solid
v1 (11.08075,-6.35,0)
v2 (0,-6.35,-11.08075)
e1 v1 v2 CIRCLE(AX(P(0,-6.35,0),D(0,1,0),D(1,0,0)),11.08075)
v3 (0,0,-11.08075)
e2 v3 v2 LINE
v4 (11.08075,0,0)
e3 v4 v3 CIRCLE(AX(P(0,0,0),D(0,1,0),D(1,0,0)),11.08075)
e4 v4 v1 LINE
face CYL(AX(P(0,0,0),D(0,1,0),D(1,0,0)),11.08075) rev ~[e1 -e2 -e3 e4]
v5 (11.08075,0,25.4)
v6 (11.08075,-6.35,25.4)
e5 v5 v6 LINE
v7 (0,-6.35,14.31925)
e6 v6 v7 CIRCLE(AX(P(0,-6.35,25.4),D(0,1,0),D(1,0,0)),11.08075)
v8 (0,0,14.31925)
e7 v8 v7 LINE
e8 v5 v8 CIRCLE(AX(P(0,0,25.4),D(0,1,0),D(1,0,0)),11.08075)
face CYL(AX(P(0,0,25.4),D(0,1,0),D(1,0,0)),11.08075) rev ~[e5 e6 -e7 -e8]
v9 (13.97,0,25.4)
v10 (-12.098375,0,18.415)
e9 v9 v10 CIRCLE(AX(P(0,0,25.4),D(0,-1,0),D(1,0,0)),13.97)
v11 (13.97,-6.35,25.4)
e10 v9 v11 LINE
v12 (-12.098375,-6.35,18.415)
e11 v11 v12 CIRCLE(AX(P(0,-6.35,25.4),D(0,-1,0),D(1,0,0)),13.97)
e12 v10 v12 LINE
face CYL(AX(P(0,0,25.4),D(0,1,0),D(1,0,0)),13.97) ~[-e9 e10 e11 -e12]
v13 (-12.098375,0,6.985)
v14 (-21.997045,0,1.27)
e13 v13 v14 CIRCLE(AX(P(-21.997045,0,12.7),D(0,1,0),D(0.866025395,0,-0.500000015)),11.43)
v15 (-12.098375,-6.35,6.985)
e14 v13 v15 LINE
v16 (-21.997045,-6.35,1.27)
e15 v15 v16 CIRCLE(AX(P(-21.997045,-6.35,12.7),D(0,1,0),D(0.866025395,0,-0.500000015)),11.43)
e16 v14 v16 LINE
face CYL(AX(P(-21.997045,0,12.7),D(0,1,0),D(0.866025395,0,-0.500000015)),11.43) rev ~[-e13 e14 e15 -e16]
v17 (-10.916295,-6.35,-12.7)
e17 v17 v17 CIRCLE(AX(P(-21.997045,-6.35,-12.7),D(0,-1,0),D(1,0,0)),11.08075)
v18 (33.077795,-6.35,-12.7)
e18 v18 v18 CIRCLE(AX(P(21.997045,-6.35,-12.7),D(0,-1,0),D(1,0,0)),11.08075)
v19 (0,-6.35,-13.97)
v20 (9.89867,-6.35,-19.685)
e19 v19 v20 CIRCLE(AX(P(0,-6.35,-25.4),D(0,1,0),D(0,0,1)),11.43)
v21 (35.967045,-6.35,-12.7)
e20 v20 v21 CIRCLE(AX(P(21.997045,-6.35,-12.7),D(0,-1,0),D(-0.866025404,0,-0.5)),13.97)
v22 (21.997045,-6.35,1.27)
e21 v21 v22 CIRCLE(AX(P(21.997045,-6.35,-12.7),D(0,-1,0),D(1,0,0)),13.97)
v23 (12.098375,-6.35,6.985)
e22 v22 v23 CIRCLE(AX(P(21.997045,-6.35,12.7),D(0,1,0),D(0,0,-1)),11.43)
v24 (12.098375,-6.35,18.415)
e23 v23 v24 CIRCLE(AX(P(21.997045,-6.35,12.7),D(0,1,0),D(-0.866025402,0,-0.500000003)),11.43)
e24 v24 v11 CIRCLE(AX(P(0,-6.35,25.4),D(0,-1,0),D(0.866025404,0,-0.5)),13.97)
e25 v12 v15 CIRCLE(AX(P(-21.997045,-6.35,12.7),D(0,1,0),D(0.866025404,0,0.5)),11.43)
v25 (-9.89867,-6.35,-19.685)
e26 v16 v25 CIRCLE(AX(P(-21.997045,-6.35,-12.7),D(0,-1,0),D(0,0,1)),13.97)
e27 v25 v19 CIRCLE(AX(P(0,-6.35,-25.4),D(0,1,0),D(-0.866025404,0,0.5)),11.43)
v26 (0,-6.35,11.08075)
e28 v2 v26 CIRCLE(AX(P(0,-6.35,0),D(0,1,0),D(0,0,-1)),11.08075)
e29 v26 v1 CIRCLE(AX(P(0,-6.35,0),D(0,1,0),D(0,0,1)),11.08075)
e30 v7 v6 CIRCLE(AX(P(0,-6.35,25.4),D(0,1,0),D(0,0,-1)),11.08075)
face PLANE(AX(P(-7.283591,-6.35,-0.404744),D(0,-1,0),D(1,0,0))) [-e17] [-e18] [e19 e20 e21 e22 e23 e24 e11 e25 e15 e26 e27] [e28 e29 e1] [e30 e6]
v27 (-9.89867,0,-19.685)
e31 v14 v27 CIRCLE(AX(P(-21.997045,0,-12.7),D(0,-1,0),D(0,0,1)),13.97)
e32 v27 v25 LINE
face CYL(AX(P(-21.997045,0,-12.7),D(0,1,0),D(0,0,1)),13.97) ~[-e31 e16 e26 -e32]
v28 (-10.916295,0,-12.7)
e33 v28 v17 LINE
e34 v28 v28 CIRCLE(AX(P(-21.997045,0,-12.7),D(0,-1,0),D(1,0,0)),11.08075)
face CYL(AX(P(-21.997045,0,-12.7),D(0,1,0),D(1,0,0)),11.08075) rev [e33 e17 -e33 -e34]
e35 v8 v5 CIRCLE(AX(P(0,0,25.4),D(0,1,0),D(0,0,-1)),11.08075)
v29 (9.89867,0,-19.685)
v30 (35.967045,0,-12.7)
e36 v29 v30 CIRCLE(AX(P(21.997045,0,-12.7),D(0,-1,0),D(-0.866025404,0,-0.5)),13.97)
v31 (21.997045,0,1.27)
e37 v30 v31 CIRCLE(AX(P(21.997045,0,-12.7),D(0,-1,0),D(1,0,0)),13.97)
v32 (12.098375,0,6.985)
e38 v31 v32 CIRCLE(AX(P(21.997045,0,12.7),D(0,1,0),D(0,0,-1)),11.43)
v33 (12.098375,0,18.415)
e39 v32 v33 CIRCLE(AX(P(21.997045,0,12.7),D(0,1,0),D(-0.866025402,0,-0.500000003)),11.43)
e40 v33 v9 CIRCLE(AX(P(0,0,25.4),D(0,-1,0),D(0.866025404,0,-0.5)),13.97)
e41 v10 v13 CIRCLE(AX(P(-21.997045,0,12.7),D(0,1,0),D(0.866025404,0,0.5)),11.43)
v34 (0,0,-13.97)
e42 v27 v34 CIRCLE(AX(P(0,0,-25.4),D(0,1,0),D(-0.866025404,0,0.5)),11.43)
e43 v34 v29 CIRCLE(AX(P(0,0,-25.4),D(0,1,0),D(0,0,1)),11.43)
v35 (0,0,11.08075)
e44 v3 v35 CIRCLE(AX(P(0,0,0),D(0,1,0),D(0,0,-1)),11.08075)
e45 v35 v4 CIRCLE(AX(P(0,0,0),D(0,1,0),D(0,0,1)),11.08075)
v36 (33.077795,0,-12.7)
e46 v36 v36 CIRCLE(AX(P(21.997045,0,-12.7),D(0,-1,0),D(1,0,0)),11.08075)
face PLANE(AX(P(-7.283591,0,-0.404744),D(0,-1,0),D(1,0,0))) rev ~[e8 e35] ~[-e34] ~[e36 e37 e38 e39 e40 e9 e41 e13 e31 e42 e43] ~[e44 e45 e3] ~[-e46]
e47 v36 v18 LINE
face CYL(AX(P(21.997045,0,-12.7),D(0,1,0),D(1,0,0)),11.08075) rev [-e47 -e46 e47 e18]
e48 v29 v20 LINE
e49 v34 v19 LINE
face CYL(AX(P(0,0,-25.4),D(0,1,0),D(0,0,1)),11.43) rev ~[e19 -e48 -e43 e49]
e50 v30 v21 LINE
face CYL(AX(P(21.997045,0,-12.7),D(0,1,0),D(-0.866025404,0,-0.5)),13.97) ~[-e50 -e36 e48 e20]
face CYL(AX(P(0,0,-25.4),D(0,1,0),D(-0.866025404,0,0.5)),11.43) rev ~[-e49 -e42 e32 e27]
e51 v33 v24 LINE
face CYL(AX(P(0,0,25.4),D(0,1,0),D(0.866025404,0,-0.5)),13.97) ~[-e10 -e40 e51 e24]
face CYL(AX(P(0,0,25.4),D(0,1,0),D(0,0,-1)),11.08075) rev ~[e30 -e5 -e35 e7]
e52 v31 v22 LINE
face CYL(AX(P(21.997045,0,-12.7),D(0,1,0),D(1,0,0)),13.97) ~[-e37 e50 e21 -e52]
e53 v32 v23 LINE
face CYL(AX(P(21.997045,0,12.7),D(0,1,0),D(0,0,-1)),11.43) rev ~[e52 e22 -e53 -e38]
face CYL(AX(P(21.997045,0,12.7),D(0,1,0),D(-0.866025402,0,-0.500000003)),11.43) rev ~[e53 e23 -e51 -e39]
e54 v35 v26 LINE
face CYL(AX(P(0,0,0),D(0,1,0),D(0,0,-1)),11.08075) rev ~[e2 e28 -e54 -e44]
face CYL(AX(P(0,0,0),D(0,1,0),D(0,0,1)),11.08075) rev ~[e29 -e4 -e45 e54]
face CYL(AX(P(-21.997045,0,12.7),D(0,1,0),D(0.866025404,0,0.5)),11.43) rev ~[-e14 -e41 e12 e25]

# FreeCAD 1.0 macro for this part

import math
import FreeCAD as App
import Part
import Sketcher
Q = App.Units.Quantity

doc = App.newDocument("Part")
body = doc.addObject("PartDesign::Body", "Body")

sketch1 = body.newObject("Sketcher::SketchObject", "Sketch")
sketch1.AttachmentSupport = (doc.getObject("XZ_Plane"), [""])
sketch1.MapMode = "FlatFace"
sketch1.addGeometry(Part.ArcOfCircle(Part.Circle(App.Vector(22, -13, 0), App.Vector(0, 0, 1), 14), math.radians(-150), math.radians(0)), False)
sketch1.addGeometry(Part.ArcOfCircle(Part.Circle(App.Vector(22, -13, 0), App.Vector(0, 0, 1), 14), math.radians(0), math.radians(90)), False)
sketch1.addGeometry(Part.ArcOfCircle(Part.Circle(App.Vector(22, 13, 0), App.Vector(0, 0, 1), 11), math.radians(-150), math.radians(-90)), False)
sketch1.addGeometry(Part.ArcOfCircle(Part.Circle(App.Vector(22, 13, 0), App.Vector(0, 0, 1), 11), math.radians(150), math.radians(210)), False)
sketch1.addGeometry(Part.ArcOfCircle(Part.Circle(App.Vector(0, 25, 0), App.Vector(0, 0, 1), 14), math.radians(-30), math.radians(0)), False)
sketch1.addGeometry(Part.ArcOfCircle(Part.Circle(App.Vector(0, 25, 0), App.Vector(0, 0, 1), 14), math.radians(0), math.radians(210)), False)
sketch1.addGeometry(Part.ArcOfCircle(Part.Circle(App.Vector(-22, 13, 0), App.Vector(0, 0, 1), 11), math.radians(-30), math.radians(30)), False)
sketch1.addGeometry(Part.ArcOfCircle(Part.Circle(App.Vector(-22, 13, 0), App.Vector(0, 0, 1), 11), math.radians(-90), math.radians(-30)), False)
sketch1.addGeometry(Part.ArcOfCircle(Part.Circle(App.Vector(-22, -13, 0), App.Vector(0, 0, 1), 14), math.radians(90), math.radians(330)), False)
sketch1.addGeometry(Part.ArcOfCircle(Part.Circle(App.Vector(0, -25, 0), App.Vector(0, 0, 1), 11), math.radians(90), math.radians(150)), False)
sketch1.addGeometry(Part.ArcOfCircle(Part.Circle(App.Vector(0, -25, 0), App.Vector(0, 0, 1), 11), math.radians(30), math.radians(90)), False)
sketch1.addGeometry(Part.Circle(App.Vector(-22, -13, 0), App.Vector(0, 0, 1), 11), False)
sketch1.addGeometry(Part.Circle(App.Vector(22, -13, 0), App.Vector(0, 0, 1), 11), False)
sketch1.addGeometry(Part.ArcOfCircle(Part.Circle(App.Vector(0, 0, 0), App.Vector(0, 0, 1), 11), math.radians(90), math.radians(270)), False)
sketch1.addGeometry(Part.ArcOfCircle(Part.Circle(App.Vector(0, 0, 0), App.Vector(0, 0, 1), 11), math.radians(0), math.radians(90)), False)
sketch1.addGeometry(Part.ArcOfCircle(Part.Circle(App.Vector(0, 0, 0), App.Vector(0, 0, 1), 11), math.radians(-90), math.radians(0)), False)
sketch1.addGeometry(Part.ArcOfCircle(Part.Circle(App.Vector(0, 25, 0), App.Vector(0, 0, 1), 11), math.radians(0), math.radians(270)), False)
sketch1.addGeometry(Part.ArcOfCircle(Part.Circle(App.Vector(0, 25, 0), App.Vector(0, 0, 1), 11), math.radians(-90), math.radians(0)), False)
sketch1.addConstraint(Sketcher.Constraint("Tangent", 0, 2, 1, 1))
sketch1.addConstraint(Sketcher.Constraint("Tangent", 1, 2, 2, 2))
sketch1.addConstraint(Sketcher.Constraint("Tangent", 2, 1, 3, 2))
sketch1.addConstraint(Sketcher.Constraint("Tangent", 3, 1, 4, 1))
sketch1.addConstraint(Sketcher.Constraint("Tangent", 4, 2, 5, 1))
sketch1.addConstraint(Sketcher.Constraint("Tangent", 5, 2, 6, 2))
sketch1.addConstraint(Sketcher.Constraint("Tangent", 6, 1, 7, 2))
sketch1.addConstraint(Sketcher.Constraint("Tangent", 7, 1, 8, 1))
sketch1.addConstraint(Sketcher.Constraint("Tangent", 8, 2, 9, 2))
sketch1.addConstraint(Sketcher.Constraint("Tangent", 9, 1, 10, 2))
sketch1.addConstraint(Sketcher.Constraint("Tangent", 10, 1, 0, 1))
sketch1.addConstraint(Sketcher.Constraint("Tangent", 13, 1, 14, 2))
sketch1.addConstraint(Sketcher.Constraint("Tangent", 14, 1, 15, 2))
sketch1.addConstraint(Sketcher.Constraint("Tangent", 15, 1, 13, 2))
sketch1.addConstraint(Sketcher.Constraint("Tangent", 16, 1, 17, 2))
sketch1.addConstraint(Sketcher.Constraint("Coincident", 17, 1, 16, 2))
sketch1.addConstraint(Sketcher.Constraint("Coincident", 13, 3, -1, 1))
sketch1.addConstraint(Sketcher.Constraint("Coincident", 11, 3, 8, 3))
sketch1.addConstraint(Sketcher.Constraint("Coincident", 12, 3, 0, 3))
sketch1.addConstraint(Sketcher.Constraint("Coincident", 16, 3, 4, 3))
sketch1.addConstraint(Sketcher.Constraint("Equal", 0, 1))
sketch1.addConstraint(Sketcher.Constraint("Equal", 2, 3))
sketch1.addConstraint(Sketcher.Constraint("Equal", 1, 4))
sketch1.addConstraint(Sketcher.Constraint("Equal", 4, 5))
sketch1.addConstraint(Sketcher.Constraint("Equal", 3, 6))
sketch1.addConstraint(Sketcher.Constraint("Equal", 6, 7))
sketch1.addConstraint(Sketcher.Constraint("Equal", 5, 8))
sketch1.addConstraint(Sketcher.Constraint("Equal", 7, 9))
sketch1.addConstraint(Sketcher.Constraint("Equal", 9, 10))
sketch1.addConstraint(Sketcher.Constraint("Equal", 11, 12))
sketch1.addConstraint(Sketcher.Constraint("Equal", 12, 13))
sketch1.addConstraint(Sketcher.Constraint("Equal", 15, 16))
sketch1.addConstraint(Sketcher.Constraint("Symmetric", 0, 3, 6, 3, -1, 1))
sketch1.addConstraint(Sketcher.Constraint("Symmetric", 2, 3, 6, 3, -2))
sketch1.addConstraint(Sketcher.Constraint("PointOnObject", 9, 3, -2))
sketch1.addConstraint(Sketcher.Constraint("PointOnObject", 9, 1, -2))
sketch1.addConstraint(Sketcher.Constraint("PointOnObject", 13, 1, -2))
sketch1.addConstraint(Sketcher.Constraint("PointOnObject", 14, 1, -1))
sketch1.addConstraint(Sketcher.Constraint("PointOnObject", 15, 1, -2))
sketch1.addConstraint(Sketcher.Constraint("PointOnObject", 17, 1, -2))
sketch1.addConstraint(Sketcher.Constraint("Horizontal", 12, 3, 0, 2))
sketch1.addConstraint(Sketcher.Constraint("Horizontal", 17, 3, 4, 2))
sketch1.addConstraint(Sketcher.Constraint("Horizontal", 2, 1, 6, 1))
sketch1.addConstraint(Sketcher.Constraint("Horizontal", 4, 2, 16, 1))
sketch1.addConstraint(Sketcher.Constraint("Vertical", 2, 1, 3, 1))
sketch1.addConstraint(Sketcher.Constraint("Radius", 0, Q("0.55 in")))
sketch1.addConstraint(Sketcher.Constraint("Radius", 2, Q("0.45 in")))
sketch1.addConstraint(Sketcher.Constraint("DistanceY", -1, 1, 4, 3, Q("1 in")))
sketch1.addConstraint(Sketcher.Constraint("Diameter", 11, Q("0.8725 in")))
pad1 = body.newObject("PartDesign::Pad", "Pad")
pad1.Profile = sketch1
pad1.Length = Q("0.25 in")

doc.recompute()
